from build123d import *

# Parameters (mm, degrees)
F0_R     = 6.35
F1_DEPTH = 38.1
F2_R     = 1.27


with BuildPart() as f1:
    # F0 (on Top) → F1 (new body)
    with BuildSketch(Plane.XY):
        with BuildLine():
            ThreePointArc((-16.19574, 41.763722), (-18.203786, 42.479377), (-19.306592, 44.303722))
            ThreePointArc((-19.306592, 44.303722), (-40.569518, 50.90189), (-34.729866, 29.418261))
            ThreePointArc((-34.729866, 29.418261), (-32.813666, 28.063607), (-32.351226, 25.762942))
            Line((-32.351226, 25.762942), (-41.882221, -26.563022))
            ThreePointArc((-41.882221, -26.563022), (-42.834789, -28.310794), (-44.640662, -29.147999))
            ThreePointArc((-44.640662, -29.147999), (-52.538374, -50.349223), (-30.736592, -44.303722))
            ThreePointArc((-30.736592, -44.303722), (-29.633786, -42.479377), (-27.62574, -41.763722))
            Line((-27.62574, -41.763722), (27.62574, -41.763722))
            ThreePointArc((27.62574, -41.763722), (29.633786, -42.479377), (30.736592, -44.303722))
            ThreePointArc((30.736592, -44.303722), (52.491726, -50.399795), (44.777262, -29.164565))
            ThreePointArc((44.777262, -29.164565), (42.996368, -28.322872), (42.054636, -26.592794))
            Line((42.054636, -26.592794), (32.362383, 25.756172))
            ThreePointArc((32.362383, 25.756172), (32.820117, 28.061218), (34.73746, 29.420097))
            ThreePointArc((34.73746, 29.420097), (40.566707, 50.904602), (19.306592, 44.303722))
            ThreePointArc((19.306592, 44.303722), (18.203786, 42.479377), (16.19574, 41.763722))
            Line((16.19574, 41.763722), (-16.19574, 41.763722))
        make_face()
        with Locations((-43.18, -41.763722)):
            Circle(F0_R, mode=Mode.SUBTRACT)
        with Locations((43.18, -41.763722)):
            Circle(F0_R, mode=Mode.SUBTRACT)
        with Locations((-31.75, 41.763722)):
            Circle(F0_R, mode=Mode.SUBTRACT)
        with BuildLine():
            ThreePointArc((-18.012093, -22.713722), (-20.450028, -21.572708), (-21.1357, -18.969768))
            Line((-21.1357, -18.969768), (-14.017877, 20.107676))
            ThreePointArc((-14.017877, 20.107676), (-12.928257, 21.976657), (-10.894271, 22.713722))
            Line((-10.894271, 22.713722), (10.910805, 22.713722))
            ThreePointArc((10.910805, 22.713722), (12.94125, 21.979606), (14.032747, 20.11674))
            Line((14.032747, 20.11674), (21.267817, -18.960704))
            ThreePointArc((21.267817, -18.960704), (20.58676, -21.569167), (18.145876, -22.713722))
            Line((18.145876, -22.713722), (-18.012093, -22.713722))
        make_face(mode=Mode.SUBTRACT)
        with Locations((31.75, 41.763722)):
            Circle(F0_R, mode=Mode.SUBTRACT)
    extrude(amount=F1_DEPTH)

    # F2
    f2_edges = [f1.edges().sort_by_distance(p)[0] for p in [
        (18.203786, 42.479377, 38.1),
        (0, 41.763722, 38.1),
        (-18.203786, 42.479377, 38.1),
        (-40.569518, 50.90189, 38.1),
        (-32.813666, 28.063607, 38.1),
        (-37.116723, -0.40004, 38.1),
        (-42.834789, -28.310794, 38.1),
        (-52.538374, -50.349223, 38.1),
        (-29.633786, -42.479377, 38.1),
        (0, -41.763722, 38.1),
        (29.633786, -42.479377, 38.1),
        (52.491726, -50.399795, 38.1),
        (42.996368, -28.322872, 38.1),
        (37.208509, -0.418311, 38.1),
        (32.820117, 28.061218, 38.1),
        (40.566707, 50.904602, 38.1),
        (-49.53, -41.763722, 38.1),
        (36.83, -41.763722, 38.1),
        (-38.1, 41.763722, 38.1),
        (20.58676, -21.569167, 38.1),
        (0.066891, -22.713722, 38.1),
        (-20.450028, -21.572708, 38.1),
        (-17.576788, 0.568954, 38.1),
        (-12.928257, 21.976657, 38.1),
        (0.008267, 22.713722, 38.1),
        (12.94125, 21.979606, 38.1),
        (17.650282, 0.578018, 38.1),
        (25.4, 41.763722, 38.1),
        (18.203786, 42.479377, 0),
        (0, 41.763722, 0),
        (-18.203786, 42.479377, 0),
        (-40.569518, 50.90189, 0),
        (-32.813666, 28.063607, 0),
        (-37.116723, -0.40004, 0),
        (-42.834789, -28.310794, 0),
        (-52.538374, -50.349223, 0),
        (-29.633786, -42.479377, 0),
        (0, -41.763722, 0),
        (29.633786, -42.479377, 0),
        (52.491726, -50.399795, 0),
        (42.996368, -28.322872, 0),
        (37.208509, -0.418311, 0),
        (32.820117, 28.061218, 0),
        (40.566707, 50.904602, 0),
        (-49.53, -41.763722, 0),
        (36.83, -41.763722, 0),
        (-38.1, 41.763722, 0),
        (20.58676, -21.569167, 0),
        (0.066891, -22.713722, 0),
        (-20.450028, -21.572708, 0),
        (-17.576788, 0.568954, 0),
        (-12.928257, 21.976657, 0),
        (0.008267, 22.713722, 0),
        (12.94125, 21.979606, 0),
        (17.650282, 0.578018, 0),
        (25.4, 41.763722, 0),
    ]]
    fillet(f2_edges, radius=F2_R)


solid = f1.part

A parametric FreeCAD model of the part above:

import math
import FreeCAD as App
import Part
import Sketcher
from FreeCAD import Vector
Q = App.Units.Quantity


def edges_at(feature, points):
    """Names of the edges that pass closest to the given points."""
    edges = feature.Shape.Edges
    near = lambda p: min(range(len(edges)), key=lambda i: edges[i].distToShape(Part.Vertex(*p))[0])
    return sorted({f"Edge{near(p) + 1}" for p in points})

doc = App.newDocument("Part")
body = doc.addObject("PartDesign::Body", "Body")

sketch1 = body.newObject("Sketcher::SketchObject", "Sketch")
sketch1.AttachmentSupport = (doc.getObject("XY_Plane"), [""])
sketch1.MapMode = "FlatFace"
sketch1.addGeometry([
    Part.ArcOfCircle(Part.Circle(Vector(-16.2, 44.9, 0), Vector(0, 0, 1), 3.2), math.radians(-168), math.radians(-90)),
    Part.ArcOfCircle(Part.Circle(Vector(-31.8, 41.8, 0), Vector(0, 0, 1), 12.7), math.radians(12), math.radians(256)),
    Part.ArcOfCircle(Part.Circle(Vector(-35.5, 26.3, 0), Vector(0, 0, 1), 3.2), math.radians(-10), math.radians(76)),
    Part.LineSegment(Vector(-32.4, 25.8, 0), Vector(-41.9, -26.6, 0)),
    Part.ArcOfCircle(Part.Circle(Vector(-45, -26, 0), Vector(0, 0, 1), 3.2), math.radians(-83), math.radians(-10)),
    Part.ArcOfCircle(Part.Circle(Vector(-43.2, -41.8, 0), Vector(0, 0, 1), 12.7), math.radians(97), math.radians(348)),
    Part.ArcOfCircle(Part.Circle(Vector(-27.6, -44.9, 0), Vector(0, 0, 1), 3.2), math.radians(90), math.radians(168)),
    Part.LineSegment(Vector(-27.6, -41.8, 0), Vector(27.6, -41.8, 0)),
    Part.ArcOfCircle(Part.Circle(Vector(27.6, -44.9, 0), Vector(0, 0, 1), 3.2), math.radians(12), math.radians(90)),
    Part.ArcOfCircle(Part.Circle(Vector(43.2, -41.8, 0), Vector(0, 0, 1), 12.7), math.radians(-168), math.radians(83)),
    Part.ArcOfCircle(Part.Circle(Vector(45.2, -26, 0), Vector(0, 0, 1), 3.2), math.radians(-170), math.radians(-97)),
    Part.LineSegment(Vector(42.1, -26.6, 0), Vector(32.4, 25.8, 0)),
    Part.ArcOfCircle(Part.Circle(Vector(35.5, 26.3, 0), Vector(0, 0, 1), 3.2), math.radians(104), math.radians(190)),
    Part.ArcOfCircle(Part.Circle(Vector(31.8, 41.8, 0), Vector(0, 0, 1), 12.7), math.radians(-76), math.radians(168)),
    Part.ArcOfCircle(Part.Circle(Vector(16.2, 44.9, 0), Vector(0, 0, 1), 3.2), math.radians(-90), math.radians(-12)),
    Part.LineSegment(Vector(16.2, 41.8, 0), Vector(-16.2, 41.8, 0)),
    Part.Circle(Vector(-43.2, -41.8, 0), Vector(0, 0, 1), 6.3),
    Part.Circle(Vector(43.2, -41.8, 0), Vector(0, 0, 1), 6.3),
    Part.Circle(Vector(-31.8, 41.8, 0), Vector(0, 0, 1), 6.3),
    Part.LineSegment(Vector(18.1, -22.7, 0), Vector(-18, -22.7, 0)),
    Part.ArcOfCircle(Part.Circle(Vector(-18, -19.5, 0), Vector(0, 0, 1), 3.2), math.radians(170), math.radians(270)),
    Part.LineSegment(Vector(-21.1, -19, 0), Vector(-14, 20.1, 0)),
    Part.ArcOfCircle(Part.Circle(Vector(-10.9, 19.5, 0), Vector(0, 0, 1), 3.2), math.radians(90), math.radians(170)),
    Part.LineSegment(Vector(-10.9, 22.7, 0), Vector(10.9, 22.7, 0)),
    Part.ArcOfCircle(Part.Circle(Vector(10.9, 19.5, 0), Vector(0, 0, 1), 3.2), math.radians(10), math.radians(90)),
    Part.LineSegment(Vector(14, 20.1, 0), Vector(21.3, -19, 0)),
    Part.ArcOfCircle(Part.Circle(Vector(18.1, -19.5, 0), Vector(0, 0, 1), 3.2), math.radians(-90), math.radians(10)),
    Part.Circle(Vector(31.8, 41.8, 0), Vector(0, 0, 1), 6.3),
], False)
sketch1.addConstraint([
    Sketcher.Constraint("Tangent", 0, 1, 1, 1),
    Sketcher.Constraint("Tangent", 1, 2, 2, 2),
    Sketcher.Constraint("Tangent", 2, 1, 3, 1),
    Sketcher.Constraint("Tangent", 3, 2, 4, 2),
    Sketcher.Constraint("Tangent", 4, 1, 5, 1),
    Sketcher.Constraint("Tangent", 5, 2, 6, 2),
    Sketcher.Constraint("Tangent", 6, 1, 7, 1),
    Sketcher.Constraint("Tangent", 7, 2, 8, 2),
    Sketcher.Constraint("Tangent", 8, 1, 9, 1),
    Sketcher.Constraint("Tangent", 9, 2, 10, 2),
    Sketcher.Constraint("Tangent", 10, 1, 11, 1),
    Sketcher.Constraint("Tangent", 11, 2, 12, 2),
    Sketcher.Constraint("Tangent", 12, 1, 13, 1),
    Sketcher.Constraint("Tangent", 13, 2, 14, 2),
    Sketcher.Constraint("Tangent", 14, 1, 15, 1),
    Sketcher.Constraint("Tangent", 15, 2, 0, 2),
    Sketcher.Constraint("Tangent", 19, 2, 20, 2),
    Sketcher.Constraint("Tangent", 20, 1, 21, 1),
    Sketcher.Constraint("Tangent", 21, 2, 22, 2),
    Sketcher.Constraint("Tangent", 22, 1, 23, 1),
    Sketcher.Constraint("Tangent", 23, 2, 24, 2),
    Sketcher.Constraint("Tangent", 24, 1, 25, 1),
    Sketcher.Constraint("Tangent", 25, 2, 26, 2),
    Sketcher.Constraint("Tangent", 26, 1, 19, 1),
    Sketcher.Constraint("Horizontal", 7),
    Sketcher.Constraint("Horizontal", 15),
    Sketcher.Constraint("Horizontal", 19),
    Sketcher.Constraint("Horizontal", 23),
    Sketcher.Constraint("Coincident", 16, 3, 5, 3),
    Sketcher.Constraint("Coincident", 17, 3, 9, 3),
    Sketcher.Constraint("Coincident", 18, 3, 1, 3),
    Sketcher.Constraint("Coincident", 27, 3, 13, 3),
    Sketcher.Constraint("Equal", 0, 2),
    Sketcher.Constraint("Equal", 2, 4),
    Sketcher.Constraint("Equal", 1, 5),
    Sketcher.Constraint("Equal", 4, 6),
    Sketcher.Constraint("Equal", 6, 8),
    Sketcher.Constraint("Equal", 5, 9),
    Sketcher.Constraint("Equal", 8, 12),
    Sketcher.Constraint("Equal", 9, 13),
    Sketcher.Constraint("Equal", 12, 14),
    Sketcher.Constraint("Equal", 16, 17),
    Sketcher.Constraint("Equal", 17, 18),
    Sketcher.Constraint("Equal", 14, 20),
    Sketcher.Constraint("Equal", 20, 22),
    Sketcher.Constraint("Equal", 20, 24),
    Sketcher.Constraint("Equal", 22, 26),
    Sketcher.Constraint("Equal", 18, 27),
    Sketcher.Constraint("Symmetric", 5, 3, 9, 3, -2),
    Sketcher.Constraint("Symmetric", 1, 3, 13, 3, -2),
    Sketcher.Constraint("Parallel", 3, 21),
    Sketcher.Constraint("Parallel", 11, 25),
    Sketcher.Constraint("Horizontal", 17, 3, 6, 1),
    Sketcher.Constraint("Horizontal", 27, 3, 14, 1),
    Sketcher.Constraint("Diameter", 16, Q("0.5 in")),
    Sketcher.Constraint("Radius", 1, Q("0.5 in")),
    Sketcher.Constraint("Radius", 0, Q("0.125 in")),
    Sketcher.Constraint("Radius", 10, Q("0.1250001 in")),
    Sketcher.Constraint("DistanceY", 6, 3, 20, 3, Q("1 in")),
    Sketcher.Constraint("DistanceY", 22, 3, 0, 3, Q("0.9999999 in")),
    Sketcher.Constraint("DistanceX", 5, 3, -1, 1, Q("1.7 in")),
    Sketcher.Constraint("DistanceX", 1, 3, 13, 3, Q("2.5 in")),
    Sketcher.Constraint("DistanceY", 2, 1, 2, 3, Q("0.0223998 in")),
    Sketcher.Constraint("DistanceX", 4, 1, 3, 2, Q("0.1086 in")),
    Sketcher.Constraint("Distance", 3, Q("53.1869 mm")),
    Sketcher.Constraint("DistanceX", 19, 2, 19, 1, Q("36.157969 mm")),
    Sketcher.Constraint("DistanceY", 4, 1, -1, 1, Q("29.147999 mm")),
    Sketcher.Constraint("DistanceX", 20, 1, -1, 1, Q("21.1357 mm")),
    Sketcher.Constraint("Distance", 11, Q("53.238651 mm")),
    Sketcher.Constraint("DistanceX", 23, 1, 23, 2, Q("21.805076 mm")),
])
pad1 = body.newObject("PartDesign::Pad", "Pad")
pad1.Profile = sketch1
pad1.Length = Q("1.5 in")
doc.recompute()

fillet = body.newObject("PartDesign::Fillet", "Fillet")
fillet.Base = (pad1, edges_at(pad1, [
    (18.204, 42.479, 38.1),
    (0, 41.764, 38.1),
    (-18.204, 42.479, 38.1),
    (-40.57, 50.902, 38.1),
    (-32.814, 28.064, 38.1),
    (-37.117, -0.4, 38.1),
    (-42.835, -28.311, 38.1),
    (-52.538, -50.349, 38.1),
    (-29.634, -42.479, 38.1),
    (0, -41.764, 38.1),
    (29.634, -42.479, 38.1),
    (52.492, -50.4, 38.1),
    (42.996, -28.323, 38.1),
    (37.209, -0.418, 38.1),
    (32.82, 28.061, 38.1),
    (40.567, 50.905, 38.1),
    (-49.53, -41.764, 38.1),
    (36.83, -41.764, 38.1),
    (-38.1, 41.764, 38.1),
    (20.587, -21.569, 38.1),
    (0.067, -22.714, 38.1),
    (-20.45, -21.573, 38.1),
    (-17.577, 0.569, 38.1),
    (-12.928, 21.977, 38.1),
    (0.008, 22.714, 38.1),
    (12.941, 21.98, 38.1),
    (17.65, 0.578, 38.1),
    (25.4, 41.764, 38.1),
    (18.204, 42.479, 0),
    (0, 41.764, 0),
    (-18.204, 42.479, 0),
    (-40.57, 50.902, 0),
    (-32.814, 28.064, 0),
    (-37.117, -0.4, 0),
    (-42.835, -28.311, 0),
    (-52.538, -50.349, 0),
    (-29.634, -42.479, 0),
    (0, -41.764, 0),
    (29.634, -42.479, 0),
    (52.492, -50.4, 0),
    (42.996, -28.323, 0),
    (37.209, -0.418, 0),
    (32.82, 28.061, 0),
    (40.567, 50.905, 0),
    (-49.53, -41.764, 0),
    (36.83, -41.764, 0),
    (-38.1, 41.764, 0),
    (20.587, -21.569, 0),
    (0.067, -22.714, 0),
    (-20.45, -21.573, 0),
    (-17.577, 0.569, 0),
    (-12.928, 21.977, 0),
    (0.008, 22.714, 0),
    (12.941, 21.98, 0),
    (17.65, 0.578, 0),
    (25.4, 41.764, 0),
]))
fillet.Radius = Q("0.05 in")

doc.recompute()
